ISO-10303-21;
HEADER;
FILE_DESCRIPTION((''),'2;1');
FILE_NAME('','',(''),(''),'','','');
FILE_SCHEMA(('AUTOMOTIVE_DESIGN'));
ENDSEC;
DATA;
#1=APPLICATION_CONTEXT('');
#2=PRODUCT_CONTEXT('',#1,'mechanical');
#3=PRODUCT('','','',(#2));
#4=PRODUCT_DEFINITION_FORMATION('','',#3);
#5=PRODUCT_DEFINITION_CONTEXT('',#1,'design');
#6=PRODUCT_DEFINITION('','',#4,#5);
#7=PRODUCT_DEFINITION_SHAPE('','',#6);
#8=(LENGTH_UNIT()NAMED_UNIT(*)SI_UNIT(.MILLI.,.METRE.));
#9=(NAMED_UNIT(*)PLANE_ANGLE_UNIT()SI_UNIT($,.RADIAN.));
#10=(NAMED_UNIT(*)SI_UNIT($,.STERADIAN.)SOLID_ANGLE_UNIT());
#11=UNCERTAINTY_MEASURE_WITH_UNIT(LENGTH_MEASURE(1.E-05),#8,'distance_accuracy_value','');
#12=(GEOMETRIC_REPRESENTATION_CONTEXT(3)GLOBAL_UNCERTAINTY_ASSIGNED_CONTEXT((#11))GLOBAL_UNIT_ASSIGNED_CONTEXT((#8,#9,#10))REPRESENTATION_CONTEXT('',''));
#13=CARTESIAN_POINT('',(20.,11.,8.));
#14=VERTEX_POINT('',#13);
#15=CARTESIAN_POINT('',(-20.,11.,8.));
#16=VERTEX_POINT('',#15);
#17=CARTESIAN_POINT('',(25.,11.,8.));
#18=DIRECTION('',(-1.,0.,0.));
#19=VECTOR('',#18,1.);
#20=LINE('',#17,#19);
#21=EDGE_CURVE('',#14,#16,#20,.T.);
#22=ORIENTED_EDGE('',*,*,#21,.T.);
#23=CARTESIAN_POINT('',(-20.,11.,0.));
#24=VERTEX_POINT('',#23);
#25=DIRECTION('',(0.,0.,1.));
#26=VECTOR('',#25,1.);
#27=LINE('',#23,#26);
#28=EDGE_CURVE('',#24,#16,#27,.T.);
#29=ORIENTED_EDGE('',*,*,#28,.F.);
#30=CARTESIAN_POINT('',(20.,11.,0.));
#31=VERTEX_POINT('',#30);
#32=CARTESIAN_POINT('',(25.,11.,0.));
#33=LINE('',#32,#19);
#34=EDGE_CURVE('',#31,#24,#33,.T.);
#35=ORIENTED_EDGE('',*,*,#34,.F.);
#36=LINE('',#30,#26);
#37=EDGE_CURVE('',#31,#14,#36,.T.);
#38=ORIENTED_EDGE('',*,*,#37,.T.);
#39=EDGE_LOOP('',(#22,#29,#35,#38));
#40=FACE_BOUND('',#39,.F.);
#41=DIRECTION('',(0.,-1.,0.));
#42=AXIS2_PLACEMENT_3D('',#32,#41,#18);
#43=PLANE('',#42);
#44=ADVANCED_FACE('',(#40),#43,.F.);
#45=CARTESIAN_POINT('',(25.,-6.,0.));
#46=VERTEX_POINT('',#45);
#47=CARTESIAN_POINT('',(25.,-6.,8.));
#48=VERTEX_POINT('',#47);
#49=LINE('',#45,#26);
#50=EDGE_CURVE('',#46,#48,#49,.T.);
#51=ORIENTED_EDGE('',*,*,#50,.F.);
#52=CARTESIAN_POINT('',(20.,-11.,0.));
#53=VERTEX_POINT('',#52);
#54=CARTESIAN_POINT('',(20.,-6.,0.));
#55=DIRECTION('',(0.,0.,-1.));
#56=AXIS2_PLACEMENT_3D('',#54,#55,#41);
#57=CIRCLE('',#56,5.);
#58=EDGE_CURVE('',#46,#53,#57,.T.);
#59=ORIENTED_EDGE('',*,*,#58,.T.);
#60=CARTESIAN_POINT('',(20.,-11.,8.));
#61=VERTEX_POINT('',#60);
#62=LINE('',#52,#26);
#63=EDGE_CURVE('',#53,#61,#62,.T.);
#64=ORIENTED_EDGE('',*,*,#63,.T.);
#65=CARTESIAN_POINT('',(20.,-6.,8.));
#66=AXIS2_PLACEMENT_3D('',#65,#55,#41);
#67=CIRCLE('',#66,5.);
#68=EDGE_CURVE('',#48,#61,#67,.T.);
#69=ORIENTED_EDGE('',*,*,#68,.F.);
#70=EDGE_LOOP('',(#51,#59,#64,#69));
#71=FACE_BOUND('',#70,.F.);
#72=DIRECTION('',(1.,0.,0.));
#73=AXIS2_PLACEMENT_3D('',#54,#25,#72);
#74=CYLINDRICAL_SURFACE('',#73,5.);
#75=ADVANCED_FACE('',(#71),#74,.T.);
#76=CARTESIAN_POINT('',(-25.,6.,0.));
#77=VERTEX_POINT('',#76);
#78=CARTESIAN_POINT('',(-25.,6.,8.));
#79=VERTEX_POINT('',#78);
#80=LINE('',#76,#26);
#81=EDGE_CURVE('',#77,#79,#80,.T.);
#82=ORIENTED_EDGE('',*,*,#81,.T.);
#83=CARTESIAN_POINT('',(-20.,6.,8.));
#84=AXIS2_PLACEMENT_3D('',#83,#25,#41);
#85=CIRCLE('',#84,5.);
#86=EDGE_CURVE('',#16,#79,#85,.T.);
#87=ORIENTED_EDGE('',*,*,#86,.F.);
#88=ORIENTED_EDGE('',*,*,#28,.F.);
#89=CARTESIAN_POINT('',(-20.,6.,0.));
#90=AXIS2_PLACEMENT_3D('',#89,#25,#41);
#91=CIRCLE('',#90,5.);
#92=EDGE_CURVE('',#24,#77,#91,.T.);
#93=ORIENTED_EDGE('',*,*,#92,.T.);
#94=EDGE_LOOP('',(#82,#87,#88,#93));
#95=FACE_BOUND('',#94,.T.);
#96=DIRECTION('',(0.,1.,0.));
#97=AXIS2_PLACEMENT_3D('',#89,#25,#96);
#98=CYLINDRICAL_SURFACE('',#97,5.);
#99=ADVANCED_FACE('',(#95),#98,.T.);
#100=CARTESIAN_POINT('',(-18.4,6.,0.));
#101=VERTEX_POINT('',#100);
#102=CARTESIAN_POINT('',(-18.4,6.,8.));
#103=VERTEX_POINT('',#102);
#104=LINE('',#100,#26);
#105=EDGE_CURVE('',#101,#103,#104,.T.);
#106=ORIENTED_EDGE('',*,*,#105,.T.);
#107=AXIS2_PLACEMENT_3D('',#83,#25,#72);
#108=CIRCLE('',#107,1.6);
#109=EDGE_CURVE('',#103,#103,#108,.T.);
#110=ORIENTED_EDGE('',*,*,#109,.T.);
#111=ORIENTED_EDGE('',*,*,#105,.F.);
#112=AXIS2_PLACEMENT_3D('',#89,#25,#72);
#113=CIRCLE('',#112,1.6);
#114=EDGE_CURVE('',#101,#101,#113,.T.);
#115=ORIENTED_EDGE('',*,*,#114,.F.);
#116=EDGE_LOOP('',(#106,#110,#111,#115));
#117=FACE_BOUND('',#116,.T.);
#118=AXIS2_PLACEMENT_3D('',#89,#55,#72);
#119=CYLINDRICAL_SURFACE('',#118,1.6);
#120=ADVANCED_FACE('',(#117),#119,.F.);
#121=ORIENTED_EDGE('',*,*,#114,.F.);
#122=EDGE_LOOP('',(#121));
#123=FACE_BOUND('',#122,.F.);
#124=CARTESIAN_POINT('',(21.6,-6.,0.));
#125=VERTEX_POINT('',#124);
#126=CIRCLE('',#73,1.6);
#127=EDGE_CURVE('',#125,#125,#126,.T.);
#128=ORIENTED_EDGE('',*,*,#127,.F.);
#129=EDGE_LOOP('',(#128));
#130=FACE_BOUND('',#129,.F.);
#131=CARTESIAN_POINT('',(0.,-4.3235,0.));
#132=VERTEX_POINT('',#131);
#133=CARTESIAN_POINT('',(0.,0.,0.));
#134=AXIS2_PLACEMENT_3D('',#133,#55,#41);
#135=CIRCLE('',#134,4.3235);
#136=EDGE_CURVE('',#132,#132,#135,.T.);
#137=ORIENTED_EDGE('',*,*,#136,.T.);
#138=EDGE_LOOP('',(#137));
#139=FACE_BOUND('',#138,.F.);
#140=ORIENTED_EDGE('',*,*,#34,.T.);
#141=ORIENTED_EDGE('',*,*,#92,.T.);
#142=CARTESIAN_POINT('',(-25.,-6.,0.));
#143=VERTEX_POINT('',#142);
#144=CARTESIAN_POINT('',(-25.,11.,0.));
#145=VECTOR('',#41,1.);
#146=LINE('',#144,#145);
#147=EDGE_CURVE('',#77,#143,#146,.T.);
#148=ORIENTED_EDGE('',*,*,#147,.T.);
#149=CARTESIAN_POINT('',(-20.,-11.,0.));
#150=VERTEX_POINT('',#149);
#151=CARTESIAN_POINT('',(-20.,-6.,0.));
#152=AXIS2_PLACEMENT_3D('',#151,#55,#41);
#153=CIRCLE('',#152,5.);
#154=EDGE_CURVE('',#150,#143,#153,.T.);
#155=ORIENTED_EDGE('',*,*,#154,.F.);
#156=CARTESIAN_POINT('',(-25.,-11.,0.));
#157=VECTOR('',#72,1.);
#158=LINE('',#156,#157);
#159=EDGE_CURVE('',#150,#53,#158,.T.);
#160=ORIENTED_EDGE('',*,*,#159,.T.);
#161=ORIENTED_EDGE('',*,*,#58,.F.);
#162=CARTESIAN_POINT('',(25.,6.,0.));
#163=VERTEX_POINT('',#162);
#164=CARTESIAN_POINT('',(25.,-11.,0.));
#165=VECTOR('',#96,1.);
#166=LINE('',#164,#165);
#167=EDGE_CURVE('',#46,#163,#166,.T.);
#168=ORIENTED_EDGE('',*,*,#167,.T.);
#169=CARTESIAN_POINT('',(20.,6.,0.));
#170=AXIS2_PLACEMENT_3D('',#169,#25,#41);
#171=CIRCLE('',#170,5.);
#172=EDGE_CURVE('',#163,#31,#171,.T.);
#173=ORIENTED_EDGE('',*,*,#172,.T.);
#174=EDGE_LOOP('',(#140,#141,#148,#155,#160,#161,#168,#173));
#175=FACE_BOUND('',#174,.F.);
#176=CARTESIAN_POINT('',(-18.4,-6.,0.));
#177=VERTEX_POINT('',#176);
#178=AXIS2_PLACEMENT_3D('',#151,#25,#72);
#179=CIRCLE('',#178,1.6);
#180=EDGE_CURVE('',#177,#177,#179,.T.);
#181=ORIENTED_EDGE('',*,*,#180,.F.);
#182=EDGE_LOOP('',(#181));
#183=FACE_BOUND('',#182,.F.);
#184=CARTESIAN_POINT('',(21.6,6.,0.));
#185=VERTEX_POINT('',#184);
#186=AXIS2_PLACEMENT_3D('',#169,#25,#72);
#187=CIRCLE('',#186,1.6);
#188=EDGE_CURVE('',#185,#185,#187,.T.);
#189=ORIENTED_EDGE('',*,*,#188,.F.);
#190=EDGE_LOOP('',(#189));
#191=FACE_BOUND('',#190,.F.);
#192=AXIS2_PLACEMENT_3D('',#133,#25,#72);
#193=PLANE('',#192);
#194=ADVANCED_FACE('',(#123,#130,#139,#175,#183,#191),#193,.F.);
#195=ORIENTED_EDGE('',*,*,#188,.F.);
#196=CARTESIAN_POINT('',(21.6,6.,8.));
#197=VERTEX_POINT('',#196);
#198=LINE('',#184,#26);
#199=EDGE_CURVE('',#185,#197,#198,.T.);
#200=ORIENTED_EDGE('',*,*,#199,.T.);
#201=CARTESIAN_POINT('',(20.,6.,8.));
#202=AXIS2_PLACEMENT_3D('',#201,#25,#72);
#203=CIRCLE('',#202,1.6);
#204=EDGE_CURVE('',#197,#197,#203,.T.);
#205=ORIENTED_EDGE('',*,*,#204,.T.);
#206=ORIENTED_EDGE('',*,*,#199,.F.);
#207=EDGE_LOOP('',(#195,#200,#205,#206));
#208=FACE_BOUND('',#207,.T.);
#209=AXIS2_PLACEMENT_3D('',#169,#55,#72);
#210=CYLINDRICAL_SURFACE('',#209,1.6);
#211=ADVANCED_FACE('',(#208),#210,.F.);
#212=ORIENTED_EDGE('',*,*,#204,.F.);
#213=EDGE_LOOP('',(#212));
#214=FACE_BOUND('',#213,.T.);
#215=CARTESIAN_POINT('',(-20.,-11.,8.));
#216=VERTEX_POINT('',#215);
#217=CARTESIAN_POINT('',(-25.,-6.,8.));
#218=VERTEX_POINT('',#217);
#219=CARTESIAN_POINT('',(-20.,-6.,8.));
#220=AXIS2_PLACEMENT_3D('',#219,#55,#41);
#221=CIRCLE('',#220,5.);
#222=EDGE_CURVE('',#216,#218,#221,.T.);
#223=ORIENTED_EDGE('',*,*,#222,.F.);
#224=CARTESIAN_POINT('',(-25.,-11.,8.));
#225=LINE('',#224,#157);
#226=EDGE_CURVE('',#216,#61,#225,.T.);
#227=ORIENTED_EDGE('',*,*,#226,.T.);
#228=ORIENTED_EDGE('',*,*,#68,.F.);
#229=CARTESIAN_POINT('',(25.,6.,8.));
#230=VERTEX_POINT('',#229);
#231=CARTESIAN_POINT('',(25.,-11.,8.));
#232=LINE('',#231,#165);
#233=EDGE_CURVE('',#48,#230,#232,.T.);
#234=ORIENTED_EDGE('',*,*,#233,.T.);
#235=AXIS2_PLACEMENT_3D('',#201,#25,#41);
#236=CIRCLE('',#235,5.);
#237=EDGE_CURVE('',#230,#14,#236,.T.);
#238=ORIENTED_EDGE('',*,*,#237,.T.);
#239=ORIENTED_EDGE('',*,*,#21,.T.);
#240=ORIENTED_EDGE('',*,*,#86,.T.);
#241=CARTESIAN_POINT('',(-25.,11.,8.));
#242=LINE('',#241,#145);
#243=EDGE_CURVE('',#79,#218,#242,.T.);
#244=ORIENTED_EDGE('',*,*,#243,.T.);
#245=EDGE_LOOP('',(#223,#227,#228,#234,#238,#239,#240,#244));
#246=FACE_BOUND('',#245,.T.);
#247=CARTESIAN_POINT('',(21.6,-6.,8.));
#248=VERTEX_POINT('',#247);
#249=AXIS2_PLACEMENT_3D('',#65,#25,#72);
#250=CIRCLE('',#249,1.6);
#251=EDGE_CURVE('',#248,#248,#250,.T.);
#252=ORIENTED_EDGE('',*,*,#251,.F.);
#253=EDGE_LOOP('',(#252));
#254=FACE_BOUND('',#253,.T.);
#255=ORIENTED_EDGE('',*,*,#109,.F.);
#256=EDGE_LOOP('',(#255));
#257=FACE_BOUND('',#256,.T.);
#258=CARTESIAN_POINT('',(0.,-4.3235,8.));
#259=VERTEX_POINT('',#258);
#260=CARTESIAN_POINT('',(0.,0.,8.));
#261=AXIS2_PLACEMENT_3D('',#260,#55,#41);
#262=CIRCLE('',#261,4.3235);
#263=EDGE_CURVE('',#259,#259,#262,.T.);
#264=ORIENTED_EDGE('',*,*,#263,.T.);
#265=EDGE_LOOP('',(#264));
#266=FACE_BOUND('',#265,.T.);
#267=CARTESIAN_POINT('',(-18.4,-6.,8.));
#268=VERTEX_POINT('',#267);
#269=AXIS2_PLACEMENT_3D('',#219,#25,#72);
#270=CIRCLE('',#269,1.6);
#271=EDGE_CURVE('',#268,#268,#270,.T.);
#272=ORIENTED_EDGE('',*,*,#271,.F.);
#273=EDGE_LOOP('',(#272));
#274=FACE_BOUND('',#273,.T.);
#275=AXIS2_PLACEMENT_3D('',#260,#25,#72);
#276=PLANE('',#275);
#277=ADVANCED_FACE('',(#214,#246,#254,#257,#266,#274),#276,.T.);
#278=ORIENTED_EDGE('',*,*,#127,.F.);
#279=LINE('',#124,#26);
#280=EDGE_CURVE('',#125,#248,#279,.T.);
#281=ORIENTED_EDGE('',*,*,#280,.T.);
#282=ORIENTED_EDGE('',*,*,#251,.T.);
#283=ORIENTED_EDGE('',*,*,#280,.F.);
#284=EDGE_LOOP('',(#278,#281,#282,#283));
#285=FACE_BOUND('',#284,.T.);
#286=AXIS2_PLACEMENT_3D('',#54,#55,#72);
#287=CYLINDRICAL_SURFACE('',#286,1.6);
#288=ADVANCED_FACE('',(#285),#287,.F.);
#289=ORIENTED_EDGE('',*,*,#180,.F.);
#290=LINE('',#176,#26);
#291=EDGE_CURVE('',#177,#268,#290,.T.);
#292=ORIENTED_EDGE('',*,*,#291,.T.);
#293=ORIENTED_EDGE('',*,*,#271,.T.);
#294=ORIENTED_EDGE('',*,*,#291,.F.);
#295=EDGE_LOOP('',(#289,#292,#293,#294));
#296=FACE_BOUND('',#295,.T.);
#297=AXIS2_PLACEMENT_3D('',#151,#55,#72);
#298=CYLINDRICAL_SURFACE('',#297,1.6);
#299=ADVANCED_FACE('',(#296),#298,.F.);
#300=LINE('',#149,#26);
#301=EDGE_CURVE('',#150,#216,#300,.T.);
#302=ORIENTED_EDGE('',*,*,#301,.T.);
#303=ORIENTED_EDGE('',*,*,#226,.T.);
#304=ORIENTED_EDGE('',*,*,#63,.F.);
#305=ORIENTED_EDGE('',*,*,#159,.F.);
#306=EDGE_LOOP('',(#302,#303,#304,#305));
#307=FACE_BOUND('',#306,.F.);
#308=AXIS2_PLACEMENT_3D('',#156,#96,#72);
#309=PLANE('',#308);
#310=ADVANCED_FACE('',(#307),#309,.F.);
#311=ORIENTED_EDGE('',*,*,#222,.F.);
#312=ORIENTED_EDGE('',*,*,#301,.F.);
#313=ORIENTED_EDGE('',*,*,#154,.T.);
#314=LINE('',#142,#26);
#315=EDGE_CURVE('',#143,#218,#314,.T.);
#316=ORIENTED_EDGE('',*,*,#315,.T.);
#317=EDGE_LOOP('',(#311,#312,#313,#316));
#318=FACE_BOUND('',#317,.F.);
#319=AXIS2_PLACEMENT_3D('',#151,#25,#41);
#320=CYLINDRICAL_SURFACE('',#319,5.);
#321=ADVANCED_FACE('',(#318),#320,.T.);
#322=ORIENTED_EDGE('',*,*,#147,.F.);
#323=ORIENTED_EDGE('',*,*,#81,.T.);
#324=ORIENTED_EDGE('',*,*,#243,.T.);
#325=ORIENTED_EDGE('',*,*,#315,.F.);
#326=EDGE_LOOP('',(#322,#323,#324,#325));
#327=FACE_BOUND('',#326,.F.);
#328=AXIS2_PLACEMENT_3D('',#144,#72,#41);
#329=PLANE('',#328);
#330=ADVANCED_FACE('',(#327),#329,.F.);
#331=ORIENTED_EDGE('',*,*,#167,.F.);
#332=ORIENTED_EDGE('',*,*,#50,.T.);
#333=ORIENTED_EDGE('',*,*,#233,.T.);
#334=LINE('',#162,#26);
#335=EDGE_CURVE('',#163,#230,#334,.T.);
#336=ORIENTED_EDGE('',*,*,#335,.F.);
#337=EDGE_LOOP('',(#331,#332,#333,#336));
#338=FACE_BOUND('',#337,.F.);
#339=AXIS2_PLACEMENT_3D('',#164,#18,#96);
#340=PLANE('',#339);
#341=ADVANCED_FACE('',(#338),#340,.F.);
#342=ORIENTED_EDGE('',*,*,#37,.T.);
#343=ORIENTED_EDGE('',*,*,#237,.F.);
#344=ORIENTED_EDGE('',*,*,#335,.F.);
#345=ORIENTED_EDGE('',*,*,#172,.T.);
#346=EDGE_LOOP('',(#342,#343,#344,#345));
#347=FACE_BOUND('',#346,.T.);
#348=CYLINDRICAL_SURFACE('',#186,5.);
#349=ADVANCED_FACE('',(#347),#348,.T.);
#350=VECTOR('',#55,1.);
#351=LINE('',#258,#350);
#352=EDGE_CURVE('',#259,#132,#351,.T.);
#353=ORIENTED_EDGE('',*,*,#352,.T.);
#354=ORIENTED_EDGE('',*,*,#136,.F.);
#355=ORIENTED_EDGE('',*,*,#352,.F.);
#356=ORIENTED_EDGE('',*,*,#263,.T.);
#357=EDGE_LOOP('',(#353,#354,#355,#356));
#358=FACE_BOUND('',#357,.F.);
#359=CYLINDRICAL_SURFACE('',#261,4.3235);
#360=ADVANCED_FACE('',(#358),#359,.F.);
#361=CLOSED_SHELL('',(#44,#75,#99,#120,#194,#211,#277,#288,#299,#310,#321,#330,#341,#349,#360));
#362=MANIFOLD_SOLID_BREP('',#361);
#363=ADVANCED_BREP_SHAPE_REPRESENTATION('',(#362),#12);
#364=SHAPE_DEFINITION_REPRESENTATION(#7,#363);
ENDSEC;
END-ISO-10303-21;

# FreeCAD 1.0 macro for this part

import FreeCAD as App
import Part
import Sketcher

V = App.Vector


def edges_at(feature, points):
    """Names of the edges that pass closest to the given points."""
    edges = feature.Shape.Edges
    near = lambda p: min(range(len(edges)), key=lambda i: edges[i].distToShape(Part.Vertex(*p))[0])
    return sorted({f"Edge{near(p) + 1}" for p in points})


def add_polygon(sketch, points):
    """Adds a closed chain of lines whose ends are joined by coincident constraints."""
    first, n = sketch.GeometryCount, len(points)
    for a, b in zip(points, points[1:] + points[:1]):
        sketch.addGeometry(Part.LineSegment(App.Vector(*a, 0), App.Vector(*b, 0)), False)
    for i in range(n):
        sketch.addConstraint(Sketcher.Constraint("Coincident", first + i, 2, first + (i + 1) % n, 1))

doc = App.newDocument("Part")
body = doc.addObject("PartDesign::Body", "Body")

sketch1 = body.newObject("Sketcher::SketchObject", "Sketch")
sketch1.AttachmentSupport = (doc.getObject("XY_Plane"), [""])
sketch1.MapMode = "FlatFace"
add_polygon(sketch1, [(25, -11), (25, 11), (-25, 11), (-25, -11)])
sketch1.addGeometry(Part.Circle(V(-20, -6, 0), V(0, 0, 1), 1.6), False)
sketch1.addGeometry(Part.Circle(V(20, -6, 0), V(0, 0, 1), 1.6), False)
sketch1.addGeometry(Part.Circle(V(-20, 6, 0), V(0, 0, 1), 1.6), False)
sketch1.addGeometry(Part.Circle(V(20, 6, 0), V(0, 0, 1), 1.6), False)
sketch1.addConstraint([
    Sketcher.Constraint("Vertical", 0),
    Sketcher.Constraint("Horizontal", 1),
    Sketcher.Constraint("Vertical", 2),
    Sketcher.Constraint("Horizontal", 3),
    Sketcher.Constraint("Equal", 4, 5),
    Sketcher.Constraint("Equal", 5, 6),
    Sketcher.Constraint("Equal", 6, 7),
    Sketcher.Constraint("Symmetric", 5, 3, 6, 3, -1, 1),
    Sketcher.Constraint("Symmetric", 4, 3, 7, 3, -1, 1),
    Sketcher.Constraint("Symmetric", 0, 2, 2, 2, -1, 1),
    Sketcher.Constraint("Symmetric", 4, 3, 5, 3, -2),
    Sketcher.Constraint("Diameter", 4, 3.2),
    Sketcher.Constraint("DistanceX", 1, 2, 1, 1, 50.0),
    Sketcher.Constraint("DistanceY", 0, 1, 0, 2, 22.0),
    Sketcher.Constraint("DistanceX", 4, 3, 5, 3, 40.0),
    Sketcher.Constraint("DistanceY", 4, 3, 6, 3, 12.0),
])
pad1 = body.newObject("PartDesign::Pad", "Pad")
pad1.Profile = sketch1
pad1.Length = 8

sketch2 = body.newObject("Sketcher::SketchObject", "Sketch001")
sketch2.AttachmentSupport = (doc.getObject("XY_Plane"), [""])
sketch2.MapMode = "FlatFace"
sketch2.AttachmentOffset = App.Placement(V(0, 0, 8), App.Rotation())
sketch2.addGeometry(Part.Circle(V(0, 0, 0), V(0, 0, 1), 4.3), False)
sketch2.addConstraint([
    Sketcher.Constraint("Coincident", 0, 3, -1, 1),
    Sketcher.Constraint("Diameter", 0, 8.647),
])
doc.recompute()
hole = body.newObject("PartDesign::Hole", "Hole")
hole.Profile = sketch2
hole.ThreadType = "None"
hole.Diameter = 8.647
hole.DepthType = "ThroughAll"
doc.recompute()

fillet = body.newObject("PartDesign::Fillet", "Fillet")
fillet.Base = (hole, edges_at(hole, [
    (25, 11, 4),
    (25, -11, 4),
    (-25, 11, 4),
    (-25, -11, 4),
]))
fillet.Radius = 5

doc.recompute()
